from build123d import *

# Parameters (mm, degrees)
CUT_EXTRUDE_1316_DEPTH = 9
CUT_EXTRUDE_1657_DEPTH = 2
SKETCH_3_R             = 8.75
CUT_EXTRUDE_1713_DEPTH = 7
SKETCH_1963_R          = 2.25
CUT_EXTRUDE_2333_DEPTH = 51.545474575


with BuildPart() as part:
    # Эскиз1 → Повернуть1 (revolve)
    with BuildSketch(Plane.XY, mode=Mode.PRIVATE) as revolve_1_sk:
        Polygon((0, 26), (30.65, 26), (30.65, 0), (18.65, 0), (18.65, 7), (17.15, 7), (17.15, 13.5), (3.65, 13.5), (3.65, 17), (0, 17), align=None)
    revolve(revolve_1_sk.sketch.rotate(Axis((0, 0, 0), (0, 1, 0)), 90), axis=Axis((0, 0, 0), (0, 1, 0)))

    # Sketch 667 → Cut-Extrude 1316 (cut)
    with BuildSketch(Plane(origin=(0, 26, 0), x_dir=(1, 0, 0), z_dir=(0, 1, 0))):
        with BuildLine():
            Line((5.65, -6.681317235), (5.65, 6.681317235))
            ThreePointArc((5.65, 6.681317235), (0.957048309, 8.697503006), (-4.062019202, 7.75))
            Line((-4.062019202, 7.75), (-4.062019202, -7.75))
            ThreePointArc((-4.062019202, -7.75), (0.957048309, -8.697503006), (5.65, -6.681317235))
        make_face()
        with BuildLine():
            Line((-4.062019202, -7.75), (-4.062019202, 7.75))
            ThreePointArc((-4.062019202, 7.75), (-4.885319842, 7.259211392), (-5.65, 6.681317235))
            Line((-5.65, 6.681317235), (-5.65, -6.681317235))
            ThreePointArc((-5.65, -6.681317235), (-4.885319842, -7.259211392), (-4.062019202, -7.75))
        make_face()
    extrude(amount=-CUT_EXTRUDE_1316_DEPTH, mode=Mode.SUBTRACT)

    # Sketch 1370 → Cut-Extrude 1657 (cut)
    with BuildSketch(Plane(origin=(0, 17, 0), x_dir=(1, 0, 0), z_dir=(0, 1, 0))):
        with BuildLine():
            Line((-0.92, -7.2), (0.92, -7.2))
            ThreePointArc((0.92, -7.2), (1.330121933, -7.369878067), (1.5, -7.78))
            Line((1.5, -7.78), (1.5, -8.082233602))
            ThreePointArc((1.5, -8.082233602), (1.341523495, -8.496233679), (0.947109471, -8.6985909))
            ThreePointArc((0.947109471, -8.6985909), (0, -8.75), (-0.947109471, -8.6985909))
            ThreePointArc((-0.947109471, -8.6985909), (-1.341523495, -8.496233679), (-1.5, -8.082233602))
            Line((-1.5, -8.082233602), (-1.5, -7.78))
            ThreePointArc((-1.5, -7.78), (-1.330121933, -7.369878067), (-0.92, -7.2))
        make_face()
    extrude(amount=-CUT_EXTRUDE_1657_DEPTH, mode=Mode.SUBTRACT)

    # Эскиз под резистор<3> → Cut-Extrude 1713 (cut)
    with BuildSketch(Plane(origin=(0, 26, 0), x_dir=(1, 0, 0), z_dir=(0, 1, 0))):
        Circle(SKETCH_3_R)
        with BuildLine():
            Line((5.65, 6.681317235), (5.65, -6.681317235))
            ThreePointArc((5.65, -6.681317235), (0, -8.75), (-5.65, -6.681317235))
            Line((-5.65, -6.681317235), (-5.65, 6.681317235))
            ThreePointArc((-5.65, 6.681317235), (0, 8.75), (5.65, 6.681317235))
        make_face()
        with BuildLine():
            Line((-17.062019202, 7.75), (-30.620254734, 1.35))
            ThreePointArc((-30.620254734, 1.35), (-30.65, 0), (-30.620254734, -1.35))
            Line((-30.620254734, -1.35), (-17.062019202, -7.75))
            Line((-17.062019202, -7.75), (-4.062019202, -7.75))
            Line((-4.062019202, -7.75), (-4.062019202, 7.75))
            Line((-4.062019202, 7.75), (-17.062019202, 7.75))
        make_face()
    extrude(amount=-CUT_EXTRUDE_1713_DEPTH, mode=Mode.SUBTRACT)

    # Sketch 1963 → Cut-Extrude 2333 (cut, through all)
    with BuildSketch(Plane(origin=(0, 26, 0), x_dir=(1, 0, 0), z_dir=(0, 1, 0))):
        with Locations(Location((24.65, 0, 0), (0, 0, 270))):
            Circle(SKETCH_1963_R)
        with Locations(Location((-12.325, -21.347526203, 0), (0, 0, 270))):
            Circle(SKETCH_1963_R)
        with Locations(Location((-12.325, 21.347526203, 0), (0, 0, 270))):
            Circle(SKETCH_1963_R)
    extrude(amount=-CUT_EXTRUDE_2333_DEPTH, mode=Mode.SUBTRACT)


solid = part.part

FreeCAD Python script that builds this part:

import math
import FreeCAD as App
import Part
import Sketcher

V = App.Vector

doc = App.newDocument("Part")
params = doc.addObject("Spreadsheet::Sheet", "Params")
for row, (alias, value) in enumerate([
    ("sketch1_width", "12 mm"),
    ("sketch1_height", "9 mm"),
    ("sketch1_height2", "7 mm"),
    ("sketch1_height3", "26 mm"),
    ("sketch1_width2", "13.5 mm"),
    ("revolution_angle", "360 deg"),
    ("sketch2_radius", "8.75 mm"),
    ("pocket1_length", "9 mm"),
    ("sketch3_radius", "0.58 mm"),
    ("sketch3_radius2", "0.62 mm"),
    ("sketch3_radius3", "8.75 mm"),
    ("sketch3_width", "1.84 mm"),
    ("pocket2_length", "2 mm"),
    ("sketch4_width", "13 mm"),
    ("sketch4_radius", "8.75 mm"),
    ("sketch4_radius2", "30.65 mm"),
    ("pocket3_length", "7 mm"),
    ("sketch5_diameter", "4.5 mm"),
], start=1):
    params.set(f"A{row}", alias)
    params.set(f"B{row}", "=" + value)
    params.setAlias(f"B{row}", alias)

body = doc.addObject("PartDesign::Body", "Body")

sketch1 = doc.addObject("Sketcher::SketchObject", "Sketch")
body.addObject(sketch1)
sketch1.AttachmentSupport = (doc.XY_Plane, [""])
sketch1.MapMode = "FlatFace"
sketch1.addGeometry([
    Part.LineSegment(V(30.65, 26, 0), V(0, 26, 0)),
    Part.LineSegment(V(0, 26, 0), V(0, 17, 0)),
    Part.LineSegment(V(0, 17, 0), V(3.65, 17, 0)),
    Part.LineSegment(V(3.65, 17, 0), V(3.65, 13.5, 0)),
    Part.LineSegment(V(3.65, 13.5, 0), V(17.15, 13.5, 0)),
    Part.LineSegment(V(17.15, 13.5, 0), V(17.15, 7, 0)),
    Part.LineSegment(V(17.15, 7, 0), V(18.65, 7, 0)),
    Part.LineSegment(V(18.65, 7, 0), V(18.65, 0, 0)),
    Part.LineSegment(V(18.65, 0, 0), V(30.65, 0, 0)),
    Part.LineSegment(V(30.65, 0, 0), V(30.65, 26, 0)),
], False)
sketch1.addConstraint([
    Sketcher.Constraint("Coincident", 0, 2, 1, 1),
    Sketcher.Constraint("Coincident", 1, 2, 2, 1),
    Sketcher.Constraint("Coincident", 2, 2, 3, 1),
    Sketcher.Constraint("Coincident", 3, 2, 4, 1),
    Sketcher.Constraint("Coincident", 4, 2, 5, 1),
    Sketcher.Constraint("Coincident", 5, 2, 6, 1),
    Sketcher.Constraint("Coincident", 6, 2, 7, 1),
    Sketcher.Constraint("Coincident", 7, 2, 8, 1),
    Sketcher.Constraint("Coincident", 8, 2, 9, 1),
    Sketcher.Constraint("Coincident", 9, 2, 0, 1),
    Sketcher.Constraint("Horizontal", 0),
    Sketcher.Constraint("Vertical", 1),
    Sketcher.Constraint("Horizontal", 2),
    Sketcher.Constraint("Vertical", 3),
    Sketcher.Constraint("Horizontal", 4),
    Sketcher.Constraint("Vertical", 5),
    Sketcher.Constraint("Horizontal", 6),
    Sketcher.Constraint("Vertical", 7),
    Sketcher.Constraint("Horizontal", 8),
    Sketcher.Constraint("Vertical", 9),
    Sketcher.Constraint("PointOnObject", 0, 2, -2),
    Sketcher.Constraint("PointOnObject", 7, 2, -1),
    Sketcher.Constraint("DistanceX", 8, 1, 8, 2, 12.0),
    Sketcher.Constraint("DistanceY", 1, 2, 1, 1, 9.0),
    Sketcher.Constraint("DistanceY", 7, 2, 7, 1, 7.0),
    Sketcher.Constraint("DistanceY", 9, 1, 9, 2, 26.0),
    Sketcher.Constraint("DistanceX", 4, 1, 4, 2, 13.5),
    Sketcher.Constraint("DistanceX", 6, 1, 6, 2, 1.5),
    Sketcher.Constraint("DistanceY", 3, 2, 3, 1, 3.5),
    Sketcher.Constraint("DistanceX", 0, 2, 0, 1, 30.65),
])
sketch1.setExpression("Constraints[22]", "Params.sketch1_width")
sketch1.setExpression("Constraints[23]", "Params.sketch1_height")
sketch1.setExpression("Constraints[24]", "Params.sketch1_height2")
sketch1.setExpression("Constraints[25]", "Params.sketch1_height3")
sketch1.setExpression("Constraints[26]", "Params.sketch1_width2")
revolution = doc.addObject("PartDesign::Revolution", "Revolution")
body.addObject(revolution)
revolution.Profile = sketch1
revolution.ReferenceAxis = (sketch1, ["V_Axis"])
revolution.setExpression("Angle", "Params.revolution_angle")

sketch2 = doc.addObject("Sketcher::SketchObject", "Sketch001")
body.addObject(sketch2)
sketch2.AttachmentSupport = (doc.XZ_Plane, [""])
sketch2.MapMode = "FlatFace"
sketch2.AttachmentOffset = App.Placement(V(0, 0, -26), App.Rotation())
sketch2.addGeometry([
    Part.LineSegment(V(5.65, 6.681317, 0), V(5.65, -6.681317, 0)),
    Part.ArcOfCircle(Part.Circle(V(0, 0, 0), V(0, 0, 1), 8.75), math.radians(-117.66045), math.radians(-49.780749)),
    Part.ArcOfCircle(Part.Circle(V(0, 0, 0), V(0, 0, 1), 8.75), math.radians(-130.219251), math.radians(-117.66045)),
    Part.LineSegment(V(-5.65, -6.681317, 0), V(-5.65, 6.681317, 0)),
    Part.ArcOfCircle(Part.Circle(V(0, 0, 0), V(0, 0, 1), 8.75), math.radians(117.66045), math.radians(130.219251)),
    Part.ArcOfCircle(Part.Circle(V(0, 0, 0), V(0, 0, 1), 8.75), math.radians(49.780749), math.radians(117.66045)),
], False)
sketch2.addConstraint([
    Sketcher.Constraint("Coincident", 0, 2, 1, 2),
    Sketcher.Constraint("Tangent", 1, 1, 2, 2),
    Sketcher.Constraint("Coincident", 2, 1, 3, 1),
    Sketcher.Constraint("Coincident", 3, 2, 4, 2),
    Sketcher.Constraint("Tangent", 4, 1, 5, 2),
    Sketcher.Constraint("Coincident", 5, 1, 0, 1),
    Sketcher.Constraint("Vertical", 0),
    Sketcher.Constraint("Vertical", 3),
    Sketcher.Constraint("Coincident", 1, 3, -1, 1),
    Sketcher.Constraint("Coincident", 4, 3, -1, 1),
    Sketcher.Constraint("Equal", 1, 2),
    Sketcher.Constraint("Equal", 2, 4),
    Sketcher.Constraint("Equal", 4, 5),
    Sketcher.Constraint("Horizontal", 0, 2, 2, 1),
    Sketcher.Constraint("Vertical", 1, 1, 4, 1),
    Sketcher.Constraint("Radius", 1, 8.75),
    Sketcher.Constraint("DistanceX", -1, 1, 0, 2, 5.65),
    Sketcher.Constraint("DistanceY", 1, 1, -1, 1, 7.75),
])
sketch2.setExpression("Constraints[15]", "Params.sketch2_radius")
pocket1 = doc.addObject("PartDesign::Pocket", "Pocket")
body.addObject(pocket1)
pocket1.Profile = sketch2
pocket1.setExpression("Length", "Params.pocket1_length")
pocket1.Reversed = True

sketch3 = doc.addObject("Sketcher::SketchObject", "Sketch002")
body.addObject(sketch3)
sketch3.AttachmentSupport = (doc.XZ_Plane, [""])
sketch3.MapMode = "FlatFace"
sketch3.AttachmentOffset = App.Placement(V(0, 0, -17), App.Rotation())
sketch3.addGeometry([
    Part.LineSegment(V(0.92, 7.2, 0), V(-0.92, 7.2, 0)),
    Part.ArcOfCircle(Part.Circle(V(-0.92, 7.78, 0), V(0, 0, 1), 0.58), math.radians(180), math.radians(270)),
    Part.LineSegment(V(-1.5, 7.78, 0), V(-1.5, 8.082234, 0)),
    Part.ArcOfCircle(Part.Circle(V(-0.88, 8.082234, 0), V(0, 0, 1), 0.62), math.radians(96.213931), math.radians(180)),
    Part.ArcOfCircle(Part.Circle(V(0, 0, 0), V(0, 0, 1), 8.75), math.radians(83.786068), math.radians(96.213932)),
    Part.ArcOfCircle(Part.Circle(V(0.88, 8.082234, 0), V(0, 0, 1), 0.62), math.radians(0), math.radians(83.786069)),
    Part.LineSegment(V(1.5, 8.082234, 0), V(1.5, 7.78, 0)),
    Part.ArcOfCircle(Part.Circle(V(0.92, 7.78, 0), V(0, 0, 1), 0.58), math.radians(-90), math.radians(0)),
], False)
sketch3.addConstraint([
    Sketcher.Constraint("Tangent", 0, 2, 1, 2),
    Sketcher.Constraint("Tangent", 1, 1, 2, 1),
    Sketcher.Constraint("Tangent", 2, 2, 3, 2),
    Sketcher.Constraint("Tangent", 3, 1, 4, 2),
    Sketcher.Constraint("Tangent", 4, 1, 5, 2),
    Sketcher.Constraint("Tangent", 5, 1, 6, 1),
    Sketcher.Constraint("Tangent", 6, 2, 7, 2),
    Sketcher.Constraint("Tangent", 7, 1, 0, 1),
    Sketcher.Constraint("Horizontal", 0),
    Sketcher.Constraint("Vertical", 2),
    Sketcher.Constraint("Vertical", 6),
    Sketcher.Constraint("Coincident", 4, 3, -1, 1),
    Sketcher.Constraint("Equal", 3, 5),
    Sketcher.Constraint("Equal", 1, 7),
    Sketcher.Constraint("Horizontal", 3, 3, 5, 3),
    Sketcher.Constraint("Radius", 1, 0.58),
    Sketcher.Constraint("Radius", 3, 0.62),
    Sketcher.Constraint("Radius", 4, 8.75),
    Sketcher.Constraint("DistanceX", 0, 2, 0, 1, 1.84),
    Sketcher.Constraint("DistanceY", -1, 1, 0, 2, 7.2),
])
sketch3.setExpression("Constraints[15]", "Params.sketch3_radius")
sketch3.setExpression("Constraints[16]", "Params.sketch3_radius2")
sketch3.setExpression("Constraints[17]", "Params.sketch3_radius3")
sketch3.setExpression("Constraints[18]", "Params.sketch3_width")
pocket2 = doc.addObject("PartDesign::Pocket", "Pocket001")
body.addObject(pocket2)
pocket2.Profile = sketch3
pocket2.setExpression("Length", "Params.pocket2_length")
pocket2.Reversed = True

sketch4 = doc.addObject("Sketcher::SketchObject", "Sketch003")
body.addObject(sketch4)
sketch4.AttachmentSupport = (doc.XZ_Plane, [""])
sketch4.MapMode = "FlatFace"
sketch4.AttachmentOffset = App.Placement(V(0, 0, -26), App.Rotation())
sketch4.addGeometry([
    Part.ArcOfCircle(Part.Circle(V(0, 0, 0), V(0, 0, 1), 8.75), math.radians(49.780749), math.radians(117.66045)),
    Part.ArcOfCircle(Part.Circle(V(0, 0, 0), V(0, 0, 1), 8.75), math.radians(-49.780749), math.radians(49.780749)),
    Part.ArcOfCircle(Part.Circle(V(0, 0, 0), V(0, 0, 1), 8.75), math.radians(-117.66045), math.radians(-49.780749)),
    Part.LineSegment(V(-4.062019, -7.75, 0), V(-17.062019, -7.75, 0)),
    Part.LineSegment(V(-17.062019, -7.75, 0), V(-30.620255, -1.35, 0)),
    Part.ArcOfCircle(Part.Circle(V(0, 0, 0), V(0, 0, 1), 30.65), math.radians(177.475552), math.radians(182.524448)),
    Part.LineSegment(V(-30.620255, 1.35, 0), V(-17.062019, 7.75, 0)),
    Part.LineSegment(V(-17.062019, 7.75, 0), V(-4.062019, 7.75, 0)),
], False)
sketch4.addConstraint([
    Sketcher.Constraint("Tangent", 0, 1, 1, 2),
    Sketcher.Constraint("Tangent", 1, 1, 2, 2),
    Sketcher.Constraint("Coincident", 2, 1, 3, 1),
    Sketcher.Constraint("Coincident", 3, 2, 4, 1),
    Sketcher.Constraint("Coincident", 4, 2, 5, 2),
    Sketcher.Constraint("Coincident", 5, 1, 6, 1),
    Sketcher.Constraint("Coincident", 6, 2, 7, 1),
    Sketcher.Constraint("Coincident", 7, 2, 0, 2),
    Sketcher.Constraint("Horizontal", 3),
    Sketcher.Constraint("Horizontal", 7),
    Sketcher.Constraint("Coincident", 0, 3, -1, 1),
    Sketcher.Constraint("Coincident", 2, 3, -1, 1),
    Sketcher.Constraint("Coincident", 5, 3, -1, 1),
    Sketcher.Constraint("Symmetric", 3, 2, 6, 2, -1),
    Sketcher.Constraint("Vertical", 0, 1, 1, 1),
    Sketcher.Constraint("Vertical", 4, 2, 5, 1),
    Sketcher.Constraint("DistanceX", 3, 2, 3, 1, 13.0),
    Sketcher.Constraint("Radius", 0, 8.75),
    Sketcher.Constraint("Radius", 5, 30.65),
    Sketcher.Constraint("DistanceY", 3, 2, 4, 2, 6.4),
    Sketcher.Constraint("DistanceY", 4, 2, 5, 1, 2.7),
    Sketcher.Constraint("DistanceX", -1, 1, 0, 1, 5.65),
])
sketch4.setExpression("Constraints[16]", "Params.sketch4_width")
sketch4.setExpression("Constraints[17]", "Params.sketch4_radius")
sketch4.setExpression("Constraints[18]", "Params.sketch4_radius2")
pocket3 = doc.addObject("PartDesign::Pocket", "Pocket002")
body.addObject(pocket3)
pocket3.Profile = sketch4
pocket3.setExpression("Length", "Params.pocket3_length")
pocket3.Reversed = True

sketch5 = doc.addObject("Sketcher::SketchObject", "Sketch004")
body.addObject(sketch5)
sketch5.AttachmentSupport = (doc.XZ_Plane, [""])
sketch5.MapMode = "FlatFace"
sketch5.AttachmentOffset = App.Placement(V(0, 0, -26), App.Rotation())
sketch5.addGeometry([
    Part.Circle(V(24.65, 0, 0), V(0, 0, 1), 2.25),
    Part.Circle(V(-12.325, 21.347526, 0), V(0, 0, 1), 2.25),
    Part.Circle(V(-12.325, -21.347526, 0), V(0, 0, 1), 2.25),
], False)
sketch5.addConstraint([
    Sketcher.Constraint("Equal", 0, 1),
    Sketcher.Constraint("Equal", 1, 2),
    Sketcher.Constraint("Symmetric", 1, 3, 2, 3, -1),
    Sketcher.Constraint("PointOnObject", 0, 3, -1),
    Sketcher.Constraint("Diameter", 0, 4.5),
    Sketcher.Constraint("DistanceX", -1, 1, 0, 3, 24.65),
    Sketcher.Constraint("DistanceX", 1, 3, -1, 1, 12.325),
    Sketcher.Constraint("DistanceY", -1, 1, 1, 3, 21.347526),
])
sketch5.setExpression("Constraints[4]", "Params.sketch5_diameter")
pocket4 = doc.addObject("PartDesign::Pocket", "Pocket003")
body.addObject(pocket4)
pocket4.Profile = sketch5
pocket4.Type = "ThroughAll"
pocket4.Reversed = True

doc.recompute()
